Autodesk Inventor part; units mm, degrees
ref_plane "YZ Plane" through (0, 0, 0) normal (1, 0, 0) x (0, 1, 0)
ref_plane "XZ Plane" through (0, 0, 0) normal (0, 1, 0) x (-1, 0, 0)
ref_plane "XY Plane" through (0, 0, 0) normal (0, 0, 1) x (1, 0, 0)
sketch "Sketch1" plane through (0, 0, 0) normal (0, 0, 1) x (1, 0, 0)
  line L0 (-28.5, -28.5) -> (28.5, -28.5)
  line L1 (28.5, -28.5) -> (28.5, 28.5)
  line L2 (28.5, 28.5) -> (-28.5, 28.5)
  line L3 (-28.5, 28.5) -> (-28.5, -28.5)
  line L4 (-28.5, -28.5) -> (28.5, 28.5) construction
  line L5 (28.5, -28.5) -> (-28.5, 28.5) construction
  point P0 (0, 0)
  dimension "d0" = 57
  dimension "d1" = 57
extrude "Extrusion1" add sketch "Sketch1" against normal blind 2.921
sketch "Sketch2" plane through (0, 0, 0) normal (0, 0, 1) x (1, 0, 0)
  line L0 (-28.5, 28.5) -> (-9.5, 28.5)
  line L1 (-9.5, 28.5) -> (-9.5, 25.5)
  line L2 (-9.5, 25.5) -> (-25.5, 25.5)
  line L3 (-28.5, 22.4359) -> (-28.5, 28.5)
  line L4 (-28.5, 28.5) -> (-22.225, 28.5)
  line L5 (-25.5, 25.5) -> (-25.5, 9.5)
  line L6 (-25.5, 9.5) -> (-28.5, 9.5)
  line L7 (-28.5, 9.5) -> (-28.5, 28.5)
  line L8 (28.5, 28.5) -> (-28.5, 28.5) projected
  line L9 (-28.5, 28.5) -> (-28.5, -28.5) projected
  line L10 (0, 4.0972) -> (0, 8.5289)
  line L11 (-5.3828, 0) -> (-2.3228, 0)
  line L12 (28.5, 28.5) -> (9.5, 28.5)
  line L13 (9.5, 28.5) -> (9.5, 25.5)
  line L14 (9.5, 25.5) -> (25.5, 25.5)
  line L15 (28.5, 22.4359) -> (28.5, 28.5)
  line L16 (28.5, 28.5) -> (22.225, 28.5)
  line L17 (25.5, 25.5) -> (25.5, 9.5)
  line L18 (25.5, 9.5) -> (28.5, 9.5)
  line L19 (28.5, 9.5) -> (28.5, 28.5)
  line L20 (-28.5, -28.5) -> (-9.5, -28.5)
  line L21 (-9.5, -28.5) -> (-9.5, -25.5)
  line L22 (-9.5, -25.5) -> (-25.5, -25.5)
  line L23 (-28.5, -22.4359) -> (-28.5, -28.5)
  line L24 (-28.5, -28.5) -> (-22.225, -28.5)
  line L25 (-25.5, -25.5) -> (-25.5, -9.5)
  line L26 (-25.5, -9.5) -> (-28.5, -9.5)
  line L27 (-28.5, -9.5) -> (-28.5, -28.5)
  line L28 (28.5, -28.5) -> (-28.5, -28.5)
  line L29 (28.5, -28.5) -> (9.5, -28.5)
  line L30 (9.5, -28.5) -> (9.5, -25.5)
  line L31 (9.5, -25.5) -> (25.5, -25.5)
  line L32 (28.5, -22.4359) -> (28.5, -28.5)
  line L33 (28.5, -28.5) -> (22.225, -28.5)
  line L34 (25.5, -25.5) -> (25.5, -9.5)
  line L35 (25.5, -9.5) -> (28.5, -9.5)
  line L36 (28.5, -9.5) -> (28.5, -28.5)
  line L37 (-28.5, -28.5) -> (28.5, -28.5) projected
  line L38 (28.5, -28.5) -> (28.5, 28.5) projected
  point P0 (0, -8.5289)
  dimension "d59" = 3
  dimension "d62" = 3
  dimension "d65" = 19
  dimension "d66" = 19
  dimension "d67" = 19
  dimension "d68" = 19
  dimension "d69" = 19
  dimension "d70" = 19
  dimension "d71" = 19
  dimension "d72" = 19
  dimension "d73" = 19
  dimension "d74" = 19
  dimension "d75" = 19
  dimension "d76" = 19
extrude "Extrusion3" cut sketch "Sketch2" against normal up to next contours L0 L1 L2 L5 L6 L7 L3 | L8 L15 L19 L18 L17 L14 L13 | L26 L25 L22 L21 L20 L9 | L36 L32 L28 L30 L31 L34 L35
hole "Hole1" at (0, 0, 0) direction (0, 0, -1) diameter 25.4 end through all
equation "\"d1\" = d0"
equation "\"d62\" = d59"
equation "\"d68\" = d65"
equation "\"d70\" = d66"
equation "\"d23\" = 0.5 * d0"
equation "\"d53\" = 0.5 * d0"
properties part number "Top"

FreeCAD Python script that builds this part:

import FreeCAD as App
import Part
import Sketcher

V = App.Vector
Q = App.Units.Quantity

doc = App.newDocument("Part")
body = doc.addObject("PartDesign::Body", "Body")

sketch1 = body.newObject("Sketcher::SketchObject", "Sketch")
sketch1.AttachmentSupport = (doc.getObject("XY_Plane"), [""])
sketch1.MapMode = "FlatFace"
sketch1.addGeometry([
    Part.LineSegment(V(-28, 28, 0), V(-28, -28, 0)),
    Part.LineSegment(V(-28, -28, 0), V(28, -28, 0)),
    Part.LineSegment(V(28, -28, 0), V(28, 28, 0)),
    Part.LineSegment(V(28, 28, 0), V(-28, 28, 0)),
], False)
sketch1.addConstraint([
    Sketcher.Constraint("Coincident", 0, 2, 1, 1),
    Sketcher.Constraint("Coincident", 1, 2, 2, 1),
    Sketcher.Constraint("Coincident", 2, 2, 3, 1),
    Sketcher.Constraint("Coincident", 3, 2, 0, 1),
    Sketcher.Constraint("Vertical", 0),
    Sketcher.Constraint("Horizontal", 1),
    Sketcher.Constraint("Vertical", 2),
    Sketcher.Constraint("Horizontal", 3),
    Sketcher.Constraint("Symmetric", 0, 2, 2, 2, -1, 1),
    Sketcher.Constraint("Equal", 3, 0),
    Sketcher.Constraint("DistanceX", 1, 1, 1, 2, Q("57 mm")),
])
pad1 = body.newObject("PartDesign::Pad", "Pad")
pad1.Profile = sketch1
pad1.Length = 2.921
pad1.Reversed = True

sketch2 = body.newObject("Sketcher::SketchObject", "Sketch001")
sketch2.AttachmentSupport = (doc.getObject("XY_Plane"), [""])
sketch2.MapMode = "FlatFace"
sketch2.addGeometry([
    Part.LineSegment(V(-9.5, 28.5, 0), V(-28.5, 28.5, 0)),
    Part.LineSegment(V(-28.5, 28.5, 0), V(-28.5, 9.5, 0)),
    Part.LineSegment(V(-28.5, 9.5, 0), V(-25.5, 9.5, 0)),
    Part.LineSegment(V(-25.5, 9.5, 0), V(-25.5, 25.5, 0)),
    Part.LineSegment(V(-25.5, 25.5, 0), V(-9.5, 25.5, 0)),
    Part.LineSegment(V(-9.5, 25.5, 0), V(-9.5, 28.5, 0)),
    Part.LineSegment(V(28.5, 28.5, 0), V(9.5, 28.5, 0)),
    Part.LineSegment(V(9.5, 28.5, 0), V(9.5, 25.5, 0)),
    Part.LineSegment(V(9.5, 25.5, 0), V(25.5, 25.5, 0)),
    Part.LineSegment(V(25.5, 25.5, 0), V(25.5, 9.5, 0)),
    Part.LineSegment(V(25.5, 9.5, 0), V(28.5, 9.5, 0)),
    Part.LineSegment(V(28.5, 9.5, 0), V(28.5, 28.5, 0)),
    Part.LineSegment(V(-25.5, -9.5, 0), V(-28.5, -9.5, 0)),
    Part.LineSegment(V(-28.5, -9.5, 0), V(-28.5, -28.5, 0)),
    Part.LineSegment(V(-28.5, -28.5, 0), V(-9.5, -28.5, 0)),
    Part.LineSegment(V(-9.5, -28.5, 0), V(-9.5, -25.5, 0)),
    Part.LineSegment(V(-9.5, -25.5, 0), V(-25.5, -25.5, 0)),
    Part.LineSegment(V(-25.5, -25.5, 0), V(-25.5, -9.5, 0)),
    Part.LineSegment(V(28.5, -28.5, 0), V(28.5, -9.5, 0)),
    Part.LineSegment(V(28.5, -9.5, 0), V(25.5, -9.5, 0)),
    Part.LineSegment(V(25.5, -9.5, 0), V(25.5, -25.5, 0)),
    Part.LineSegment(V(25.5, -25.5, 0), V(9.5, -25.5, 0)),
    Part.LineSegment(V(9.5, -25.5, 0), V(9.5, -28.5, 0)),
    Part.LineSegment(V(9.5, -28.5, 0), V(28.5, -28.5, 0)),
], False)
sketch2.addConstraint([
    Sketcher.Constraint("Coincident", 0, 2, 1, 1),
    Sketcher.Constraint("Coincident", 1, 2, 2, 1),
    Sketcher.Constraint("Coincident", 2, 2, 3, 1),
    Sketcher.Constraint("Coincident", 3, 2, 4, 1),
    Sketcher.Constraint("Coincident", 4, 2, 5, 1),
    Sketcher.Constraint("Coincident", 5, 2, 0, 1),
    Sketcher.Constraint("Coincident", 6, 2, 7, 1),
    Sketcher.Constraint("Coincident", 7, 2, 8, 1),
    Sketcher.Constraint("Coincident", 8, 2, 9, 1),
    Sketcher.Constraint("Coincident", 9, 2, 10, 1),
    Sketcher.Constraint("Coincident", 10, 2, 11, 1),
    Sketcher.Constraint("Coincident", 11, 2, 6, 1),
    Sketcher.Constraint("Coincident", 12, 2, 13, 1),
    Sketcher.Constraint("Coincident", 13, 2, 14, 1),
    Sketcher.Constraint("Coincident", 14, 2, 15, 1),
    Sketcher.Constraint("Coincident", 15, 2, 16, 1),
    Sketcher.Constraint("Coincident", 16, 2, 17, 1),
    Sketcher.Constraint("Coincident", 17, 2, 12, 1),
    Sketcher.Constraint("Coincident", 18, 2, 19, 1),
    Sketcher.Constraint("Coincident", 19, 2, 20, 1),
    Sketcher.Constraint("Coincident", 20, 2, 21, 1),
    Sketcher.Constraint("Coincident", 21, 2, 22, 1),
    Sketcher.Constraint("Coincident", 22, 2, 23, 1),
    Sketcher.Constraint("Coincident", 23, 2, 18, 1),
    Sketcher.Constraint("Horizontal", 0),
    Sketcher.Constraint("Vertical", 1),
    Sketcher.Constraint("Horizontal", 2),
    Sketcher.Constraint("Vertical", 3),
    Sketcher.Constraint("Horizontal", 4),
    Sketcher.Constraint("Vertical", 5),
    Sketcher.Constraint("Horizontal", 6),
    Sketcher.Constraint("Vertical", 7),
    Sketcher.Constraint("Horizontal", 8),
    Sketcher.Constraint("Vertical", 9),
    Sketcher.Constraint("Horizontal", 10),
    Sketcher.Constraint("Vertical", 11),
    Sketcher.Constraint("Horizontal", 12),
    Sketcher.Constraint("Vertical", 13),
    Sketcher.Constraint("Horizontal", 14),
    Sketcher.Constraint("Vertical", 15),
    Sketcher.Constraint("Horizontal", 16),
    Sketcher.Constraint("Vertical", 17),
    Sketcher.Constraint("Vertical", 18),
    Sketcher.Constraint("Horizontal", 19),
    Sketcher.Constraint("Vertical", 20),
    Sketcher.Constraint("Horizontal", 21),
    Sketcher.Constraint("Vertical", 22),
    Sketcher.Constraint("Horizontal", 23),
    Sketcher.Constraint("Symmetric", 10, 2, 12, 2, -1, 1),
    Sketcher.Constraint("Symmetric", 6, 2, 14, 2, -1, 1),
    Sketcher.Constraint("Symmetric", 8, 2, 16, 2, -1, 1),
    Sketcher.Constraint("Symmetric", 1, 2, 18, 2, -1, 1),
    Sketcher.Constraint("Symmetric", 3, 2, 20, 2, -1, 1),
    Sketcher.Constraint("Symmetric", 5, 2, 22, 2, -1, 1),
    Sketcher.Constraint("Symmetric", 5, 2, 6, 2, -2),
    Sketcher.Constraint("Symmetric", 3, 2, 8, 2, -2),
    Sketcher.Constraint("Symmetric", 1, 2, 10, 2, -2),
    Sketcher.Constraint("Equal", 23, 1),
    Sketcher.Constraint("Equal", 21, 3),
    Sketcher.Constraint("DistanceX", 0, 2, 0, 1, Q("19 mm")),
    Sketcher.Constraint("DistanceX", 2, 1, 2, 2, Q("3 mm")),
    Sketcher.Constraint("DistanceX", 5, 2, 6, 2, Q("19 mm")),
    Sketcher.Constraint("DistanceY", 12, 2, 1, 2, Q("19 mm")),
])
pocket1 = body.newObject("PartDesign::Pocket", "Pocket")
pocket1.Profile = sketch2
pocket1.Type = "UpToFirst"

sketch3 = body.newObject("Sketcher::SketchObject", "Sketch002")
sketch3.AttachmentSupport = (doc.getObject("XY_Plane"), [""])
sketch3.MapMode = "FlatFace"
sketch3.addGeometry(Part.Circle(V(0, 0, 0), V(0, 0, 1), 13), False)
sketch3.addConstraint([
    Sketcher.Constraint("Coincident", 0, 3, -1, 1),
    Sketcher.Constraint("Diameter", 0, Q("25.4 mm")),
])
doc.recompute()
hole = body.newObject("PartDesign::Hole", "Hole")
hole.Profile = sketch3
hole.ThreadType = "None"
hole.Diameter = 25.4
hole.DepthType = "ThroughAll"

doc.recompute()
